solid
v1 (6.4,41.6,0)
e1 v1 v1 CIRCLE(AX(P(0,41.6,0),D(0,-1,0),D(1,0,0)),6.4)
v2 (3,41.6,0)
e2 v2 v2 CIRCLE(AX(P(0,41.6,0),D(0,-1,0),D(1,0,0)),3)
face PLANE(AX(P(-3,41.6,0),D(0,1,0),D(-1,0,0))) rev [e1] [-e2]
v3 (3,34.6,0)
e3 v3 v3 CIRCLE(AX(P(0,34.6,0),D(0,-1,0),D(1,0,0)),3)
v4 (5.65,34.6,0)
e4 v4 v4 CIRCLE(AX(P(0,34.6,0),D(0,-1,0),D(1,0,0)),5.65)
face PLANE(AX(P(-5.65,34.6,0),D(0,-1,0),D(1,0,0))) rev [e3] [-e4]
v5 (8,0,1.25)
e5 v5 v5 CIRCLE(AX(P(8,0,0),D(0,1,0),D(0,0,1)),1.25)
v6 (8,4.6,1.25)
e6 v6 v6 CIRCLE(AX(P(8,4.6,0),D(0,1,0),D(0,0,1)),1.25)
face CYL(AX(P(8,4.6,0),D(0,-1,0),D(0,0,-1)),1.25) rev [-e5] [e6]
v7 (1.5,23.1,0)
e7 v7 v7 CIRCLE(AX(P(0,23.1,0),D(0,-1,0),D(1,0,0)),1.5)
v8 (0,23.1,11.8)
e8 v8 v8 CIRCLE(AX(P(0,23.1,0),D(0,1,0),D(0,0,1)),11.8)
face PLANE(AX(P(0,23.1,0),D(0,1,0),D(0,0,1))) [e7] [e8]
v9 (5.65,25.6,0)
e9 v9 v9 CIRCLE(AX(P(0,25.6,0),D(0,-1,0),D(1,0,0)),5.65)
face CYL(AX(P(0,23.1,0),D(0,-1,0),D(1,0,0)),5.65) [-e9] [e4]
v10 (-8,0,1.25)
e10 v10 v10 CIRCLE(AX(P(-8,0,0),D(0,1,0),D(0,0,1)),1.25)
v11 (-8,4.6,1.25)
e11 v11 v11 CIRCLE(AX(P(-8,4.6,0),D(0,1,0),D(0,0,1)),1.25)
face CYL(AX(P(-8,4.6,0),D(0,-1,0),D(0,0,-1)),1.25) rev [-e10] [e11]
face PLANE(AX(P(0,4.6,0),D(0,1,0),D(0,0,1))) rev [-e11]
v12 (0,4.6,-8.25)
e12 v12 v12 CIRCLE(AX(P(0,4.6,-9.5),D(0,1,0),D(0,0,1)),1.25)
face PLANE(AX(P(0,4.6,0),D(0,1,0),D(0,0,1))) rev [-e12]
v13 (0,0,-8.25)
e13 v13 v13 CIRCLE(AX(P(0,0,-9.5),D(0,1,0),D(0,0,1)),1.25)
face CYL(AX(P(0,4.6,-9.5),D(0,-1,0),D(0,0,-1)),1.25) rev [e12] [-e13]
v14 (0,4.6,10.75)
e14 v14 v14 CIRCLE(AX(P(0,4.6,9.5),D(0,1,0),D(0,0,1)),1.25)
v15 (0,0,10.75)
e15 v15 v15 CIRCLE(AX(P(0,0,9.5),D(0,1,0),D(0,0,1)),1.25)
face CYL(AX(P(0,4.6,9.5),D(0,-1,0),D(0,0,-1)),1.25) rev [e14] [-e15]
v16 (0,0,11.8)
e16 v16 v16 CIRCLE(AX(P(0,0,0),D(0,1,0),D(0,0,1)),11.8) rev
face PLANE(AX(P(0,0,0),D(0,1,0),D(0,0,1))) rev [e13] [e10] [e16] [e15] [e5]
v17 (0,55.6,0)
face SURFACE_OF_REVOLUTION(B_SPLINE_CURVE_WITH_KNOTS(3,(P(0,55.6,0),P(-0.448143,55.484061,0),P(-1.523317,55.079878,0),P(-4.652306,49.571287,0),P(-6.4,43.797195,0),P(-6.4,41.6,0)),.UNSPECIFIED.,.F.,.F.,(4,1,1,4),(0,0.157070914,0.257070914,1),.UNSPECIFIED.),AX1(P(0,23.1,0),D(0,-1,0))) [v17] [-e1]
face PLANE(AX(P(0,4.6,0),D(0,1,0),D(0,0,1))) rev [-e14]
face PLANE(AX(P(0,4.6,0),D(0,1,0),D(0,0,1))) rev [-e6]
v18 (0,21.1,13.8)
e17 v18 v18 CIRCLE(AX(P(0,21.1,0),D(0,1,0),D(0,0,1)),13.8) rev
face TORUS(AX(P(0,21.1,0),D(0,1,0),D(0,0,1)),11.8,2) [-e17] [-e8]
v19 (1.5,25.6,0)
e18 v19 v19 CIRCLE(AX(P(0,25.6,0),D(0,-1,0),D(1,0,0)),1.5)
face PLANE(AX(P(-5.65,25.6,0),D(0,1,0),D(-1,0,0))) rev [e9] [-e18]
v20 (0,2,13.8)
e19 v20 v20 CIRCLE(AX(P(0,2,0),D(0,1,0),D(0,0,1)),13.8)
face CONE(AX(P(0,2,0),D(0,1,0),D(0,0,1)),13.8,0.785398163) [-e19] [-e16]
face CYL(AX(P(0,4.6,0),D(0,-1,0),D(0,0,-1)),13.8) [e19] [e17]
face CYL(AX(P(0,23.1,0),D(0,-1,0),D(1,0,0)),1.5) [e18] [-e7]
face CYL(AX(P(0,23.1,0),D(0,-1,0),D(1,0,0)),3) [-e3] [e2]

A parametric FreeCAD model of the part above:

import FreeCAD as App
import Part
import Sketcher
from FreeCAD import Vector


def edges_at(feature, points):
    """Names of the edges that pass closest to the given points."""
    edges = feature.Shape.Edges
    near = lambda p: min(range(len(edges)), key=lambda i: edges[i].distToShape(Part.Vertex(*p))[0])
    return sorted({f"Edge{near(p) + 1}" for p in points})

doc = App.newDocument("Part")
body = doc.addObject("PartDesign::Body", "Body")

# Sketch on XZ plane
sketch1 = doc.addObject("Sketcher::SketchObject", "Sketch")
body.addObject(sketch1)
sketch1.AttachmentSupport = (doc.XZ_Plane, [""])
sketch1.MapMode = "FlatFace"
sketch1.addGeometry([
    Part.Circle(Vector(0, 0, 0), Vector(0, 0, 1), 13.8),  # 0
    Part.Circle(Vector(0, -9.5, 0), Vector(0, 0, 1), 1.25),  # 1
    Part.Circle(Vector(-8, 0, 0), Vector(0, 0, 1), 1.25),  # 2
    Part.Circle(Vector(8, 0, 0), Vector(0, 0, 1), 1.25),  # 3
    Part.Circle(Vector(0, 9.5, 0), Vector(0, 0, 1), 1.25),  # 4
], False)
sketch1.addConstraint([
    Sketcher.Constraint("Coincident", 0, 3, -1, 1),
    Sketcher.Constraint("Equal", 1, 2),
    Sketcher.Constraint("Equal", 2, 3),
    Sketcher.Constraint("Equal", 3, 4),
    Sketcher.Constraint("Symmetric", 2, 3, 3, 3, -1, 1),
    Sketcher.Constraint("Symmetric", 1, 3, 4, 3, -1, 1),
    Sketcher.Constraint("PointOnObject", 1, 3, -2),
    Sketcher.Constraint("PointOnObject", 2, 3, -1),
    Sketcher.Constraint("Diameter", 0, 27.6),
    Sketcher.Constraint("Diameter", 1, 2.5),
    Sketcher.Constraint("DistanceX", 2, 3, -1, 1, 8.0),
    Sketcher.Constraint("DistanceY", 1, 3, 4, 3, 19.0),
])
pad1 = doc.addObject("PartDesign::Pad", "Pad")
body.addObject(pad1)
pad1.Profile = sketch1
pad1.Length = 4.6
pad1.Reversed = True

# Sketch on XZ plane
sketch2 = doc.addObject("Sketcher::SketchObject", "Sketch001")
body.addObject(sketch2)
sketch2.AttachmentSupport = (doc.XZ_Plane, [""])
sketch2.MapMode = "FlatFace"
sketch2.AttachmentOffset = App.Placement(Vector(0, 0, -4.6), App.Rotation())
sketch2.addGeometry(Part.Circle(Vector(0, 0, 0), Vector(0, 0, 1), 13.8), False)
sketch2.addConstraint([
    Sketcher.Constraint("Coincident", 0, 3, -1, 1),
    Sketcher.Constraint("Diameter", 0, 27.6),
])
pad2 = doc.addObject("PartDesign::Pad", "Pad001")
body.addObject(pad2)
pad2.Profile = sketch2
pad2.Length = 18.5
pad2.Reversed = True
doc.recompute()

fillet = doc.addObject("PartDesign::Fillet", "Fillet")
body.addObject(fillet)
fillet.Base = (pad2, edges_at(pad2, [(0, 23.1, -13.8)]))
fillet.Radius = 2

# Sketch on XY plane
sketch3 = doc.addObject("Sketcher::SketchObject", "Sketch002")
body.addObject(sketch3)
sketch3.AttachmentSupport = (doc.XY_Plane, [""])
sketch3.MapMode = "FlatFace"
sketch3.addGeometry([
    Part.LineSegment(Vector(0, 23.1, 0), Vector(0, 55.6, 0)),  # 0
    Part.BSplineCurve([Vector(0, 55.6, 0), Vector(-0.448143, 55.484061, 0), Vector(-1.523317, 55.079878, 0), Vector(-4.652306, 49.571287, 0), Vector(-6.4, 43.797195, 0), Vector(-6.4, 41.6, 0)], [4, 1, 1, 4], [0, 0.157070914, 0.257070914, 1], False, 3, [1, 1, 1, 1, 1, 1], False),  # 1
    Part.LineSegment(Vector(-6.4, 41.6, 0), Vector(-3, 41.6, 0)),  # 2
    Part.LineSegment(Vector(-3, 41.6, 0), Vector(-3, 34.6, 0)),  # 3
    Part.LineSegment(Vector(-3, 34.6, 0), Vector(-5.65, 34.6, 0)),  # 4
    Part.LineSegment(Vector(-5.65, 34.6, 0), Vector(-5.65, 25.6, 0)),  # 5
    Part.LineSegment(Vector(-5.65, 25.6, 0), Vector(-1.5, 25.6, 0)),  # 6
    Part.LineSegment(Vector(-1.5, 25.6, 0), Vector(-1.5, 23.1, 0)),  # 7
    Part.LineSegment(Vector(-1.5, 23.1, 0), Vector(0, 23.1, 0)),  # 8
], False)
sketch3.addConstraint([
    Sketcher.Constraint("Block", 1),
    Sketcher.Constraint("Coincident", 0, 2, 1, 1),
    Sketcher.Constraint("Coincident", 1, 2, 2, 1),
    Sketcher.Constraint("Coincident", 2, 2, 3, 1),
    Sketcher.Constraint("Coincident", 3, 2, 4, 1),
    Sketcher.Constraint("Coincident", 4, 2, 5, 1),
    Sketcher.Constraint("Coincident", 5, 2, 6, 1),
    Sketcher.Constraint("Coincident", 6, 2, 7, 1),
    Sketcher.Constraint("Coincident", 7, 2, 8, 1),
    Sketcher.Constraint("Coincident", 8, 2, 0, 1),
    Sketcher.Constraint("Vertical", 0),
    Sketcher.Constraint("Horizontal", 2),
    Sketcher.Constraint("Vertical", 3),
    Sketcher.Constraint("Horizontal", 4),
    Sketcher.Constraint("Vertical", 5),
    Sketcher.Constraint("Horizontal", 6),
    Sketcher.Constraint("Vertical", 7),
    Sketcher.Constraint("Horizontal", 8),
    Sketcher.Constraint("DistanceY", 3, 2, 3, 1, 7.0),
    Sketcher.Constraint("DistanceY", 5, 2, 5, 1, 9.0),
    Sketcher.Constraint("DistanceX", 2, 1, 2, 2, 3.4),
    Sketcher.Constraint("DistanceX", 8, 1, 8, 2, 1.5),
    Sketcher.Constraint("DistanceY", 0, 1, 0, 2, 32.5),
    Sketcher.Constraint("DistanceX", 4, 2, 4, 1, 2.65),
])
revolution = doc.addObject("PartDesign::Revolution", "Revolution")
body.addObject(revolution)
revolution.Profile = sketch3
revolution.ReferenceAxis = (sketch3, ["V_Axis"])
revolution.Angle = 360
doc.recompute()

chamfer = doc.addObject("PartDesign::Chamfer", "Chamfer")
body.addObject(chamfer)
chamfer.Base = (revolution, edges_at(revolution, [(0, 0, -13.8)]))
chamfer.Size = 2

doc.recompute()
